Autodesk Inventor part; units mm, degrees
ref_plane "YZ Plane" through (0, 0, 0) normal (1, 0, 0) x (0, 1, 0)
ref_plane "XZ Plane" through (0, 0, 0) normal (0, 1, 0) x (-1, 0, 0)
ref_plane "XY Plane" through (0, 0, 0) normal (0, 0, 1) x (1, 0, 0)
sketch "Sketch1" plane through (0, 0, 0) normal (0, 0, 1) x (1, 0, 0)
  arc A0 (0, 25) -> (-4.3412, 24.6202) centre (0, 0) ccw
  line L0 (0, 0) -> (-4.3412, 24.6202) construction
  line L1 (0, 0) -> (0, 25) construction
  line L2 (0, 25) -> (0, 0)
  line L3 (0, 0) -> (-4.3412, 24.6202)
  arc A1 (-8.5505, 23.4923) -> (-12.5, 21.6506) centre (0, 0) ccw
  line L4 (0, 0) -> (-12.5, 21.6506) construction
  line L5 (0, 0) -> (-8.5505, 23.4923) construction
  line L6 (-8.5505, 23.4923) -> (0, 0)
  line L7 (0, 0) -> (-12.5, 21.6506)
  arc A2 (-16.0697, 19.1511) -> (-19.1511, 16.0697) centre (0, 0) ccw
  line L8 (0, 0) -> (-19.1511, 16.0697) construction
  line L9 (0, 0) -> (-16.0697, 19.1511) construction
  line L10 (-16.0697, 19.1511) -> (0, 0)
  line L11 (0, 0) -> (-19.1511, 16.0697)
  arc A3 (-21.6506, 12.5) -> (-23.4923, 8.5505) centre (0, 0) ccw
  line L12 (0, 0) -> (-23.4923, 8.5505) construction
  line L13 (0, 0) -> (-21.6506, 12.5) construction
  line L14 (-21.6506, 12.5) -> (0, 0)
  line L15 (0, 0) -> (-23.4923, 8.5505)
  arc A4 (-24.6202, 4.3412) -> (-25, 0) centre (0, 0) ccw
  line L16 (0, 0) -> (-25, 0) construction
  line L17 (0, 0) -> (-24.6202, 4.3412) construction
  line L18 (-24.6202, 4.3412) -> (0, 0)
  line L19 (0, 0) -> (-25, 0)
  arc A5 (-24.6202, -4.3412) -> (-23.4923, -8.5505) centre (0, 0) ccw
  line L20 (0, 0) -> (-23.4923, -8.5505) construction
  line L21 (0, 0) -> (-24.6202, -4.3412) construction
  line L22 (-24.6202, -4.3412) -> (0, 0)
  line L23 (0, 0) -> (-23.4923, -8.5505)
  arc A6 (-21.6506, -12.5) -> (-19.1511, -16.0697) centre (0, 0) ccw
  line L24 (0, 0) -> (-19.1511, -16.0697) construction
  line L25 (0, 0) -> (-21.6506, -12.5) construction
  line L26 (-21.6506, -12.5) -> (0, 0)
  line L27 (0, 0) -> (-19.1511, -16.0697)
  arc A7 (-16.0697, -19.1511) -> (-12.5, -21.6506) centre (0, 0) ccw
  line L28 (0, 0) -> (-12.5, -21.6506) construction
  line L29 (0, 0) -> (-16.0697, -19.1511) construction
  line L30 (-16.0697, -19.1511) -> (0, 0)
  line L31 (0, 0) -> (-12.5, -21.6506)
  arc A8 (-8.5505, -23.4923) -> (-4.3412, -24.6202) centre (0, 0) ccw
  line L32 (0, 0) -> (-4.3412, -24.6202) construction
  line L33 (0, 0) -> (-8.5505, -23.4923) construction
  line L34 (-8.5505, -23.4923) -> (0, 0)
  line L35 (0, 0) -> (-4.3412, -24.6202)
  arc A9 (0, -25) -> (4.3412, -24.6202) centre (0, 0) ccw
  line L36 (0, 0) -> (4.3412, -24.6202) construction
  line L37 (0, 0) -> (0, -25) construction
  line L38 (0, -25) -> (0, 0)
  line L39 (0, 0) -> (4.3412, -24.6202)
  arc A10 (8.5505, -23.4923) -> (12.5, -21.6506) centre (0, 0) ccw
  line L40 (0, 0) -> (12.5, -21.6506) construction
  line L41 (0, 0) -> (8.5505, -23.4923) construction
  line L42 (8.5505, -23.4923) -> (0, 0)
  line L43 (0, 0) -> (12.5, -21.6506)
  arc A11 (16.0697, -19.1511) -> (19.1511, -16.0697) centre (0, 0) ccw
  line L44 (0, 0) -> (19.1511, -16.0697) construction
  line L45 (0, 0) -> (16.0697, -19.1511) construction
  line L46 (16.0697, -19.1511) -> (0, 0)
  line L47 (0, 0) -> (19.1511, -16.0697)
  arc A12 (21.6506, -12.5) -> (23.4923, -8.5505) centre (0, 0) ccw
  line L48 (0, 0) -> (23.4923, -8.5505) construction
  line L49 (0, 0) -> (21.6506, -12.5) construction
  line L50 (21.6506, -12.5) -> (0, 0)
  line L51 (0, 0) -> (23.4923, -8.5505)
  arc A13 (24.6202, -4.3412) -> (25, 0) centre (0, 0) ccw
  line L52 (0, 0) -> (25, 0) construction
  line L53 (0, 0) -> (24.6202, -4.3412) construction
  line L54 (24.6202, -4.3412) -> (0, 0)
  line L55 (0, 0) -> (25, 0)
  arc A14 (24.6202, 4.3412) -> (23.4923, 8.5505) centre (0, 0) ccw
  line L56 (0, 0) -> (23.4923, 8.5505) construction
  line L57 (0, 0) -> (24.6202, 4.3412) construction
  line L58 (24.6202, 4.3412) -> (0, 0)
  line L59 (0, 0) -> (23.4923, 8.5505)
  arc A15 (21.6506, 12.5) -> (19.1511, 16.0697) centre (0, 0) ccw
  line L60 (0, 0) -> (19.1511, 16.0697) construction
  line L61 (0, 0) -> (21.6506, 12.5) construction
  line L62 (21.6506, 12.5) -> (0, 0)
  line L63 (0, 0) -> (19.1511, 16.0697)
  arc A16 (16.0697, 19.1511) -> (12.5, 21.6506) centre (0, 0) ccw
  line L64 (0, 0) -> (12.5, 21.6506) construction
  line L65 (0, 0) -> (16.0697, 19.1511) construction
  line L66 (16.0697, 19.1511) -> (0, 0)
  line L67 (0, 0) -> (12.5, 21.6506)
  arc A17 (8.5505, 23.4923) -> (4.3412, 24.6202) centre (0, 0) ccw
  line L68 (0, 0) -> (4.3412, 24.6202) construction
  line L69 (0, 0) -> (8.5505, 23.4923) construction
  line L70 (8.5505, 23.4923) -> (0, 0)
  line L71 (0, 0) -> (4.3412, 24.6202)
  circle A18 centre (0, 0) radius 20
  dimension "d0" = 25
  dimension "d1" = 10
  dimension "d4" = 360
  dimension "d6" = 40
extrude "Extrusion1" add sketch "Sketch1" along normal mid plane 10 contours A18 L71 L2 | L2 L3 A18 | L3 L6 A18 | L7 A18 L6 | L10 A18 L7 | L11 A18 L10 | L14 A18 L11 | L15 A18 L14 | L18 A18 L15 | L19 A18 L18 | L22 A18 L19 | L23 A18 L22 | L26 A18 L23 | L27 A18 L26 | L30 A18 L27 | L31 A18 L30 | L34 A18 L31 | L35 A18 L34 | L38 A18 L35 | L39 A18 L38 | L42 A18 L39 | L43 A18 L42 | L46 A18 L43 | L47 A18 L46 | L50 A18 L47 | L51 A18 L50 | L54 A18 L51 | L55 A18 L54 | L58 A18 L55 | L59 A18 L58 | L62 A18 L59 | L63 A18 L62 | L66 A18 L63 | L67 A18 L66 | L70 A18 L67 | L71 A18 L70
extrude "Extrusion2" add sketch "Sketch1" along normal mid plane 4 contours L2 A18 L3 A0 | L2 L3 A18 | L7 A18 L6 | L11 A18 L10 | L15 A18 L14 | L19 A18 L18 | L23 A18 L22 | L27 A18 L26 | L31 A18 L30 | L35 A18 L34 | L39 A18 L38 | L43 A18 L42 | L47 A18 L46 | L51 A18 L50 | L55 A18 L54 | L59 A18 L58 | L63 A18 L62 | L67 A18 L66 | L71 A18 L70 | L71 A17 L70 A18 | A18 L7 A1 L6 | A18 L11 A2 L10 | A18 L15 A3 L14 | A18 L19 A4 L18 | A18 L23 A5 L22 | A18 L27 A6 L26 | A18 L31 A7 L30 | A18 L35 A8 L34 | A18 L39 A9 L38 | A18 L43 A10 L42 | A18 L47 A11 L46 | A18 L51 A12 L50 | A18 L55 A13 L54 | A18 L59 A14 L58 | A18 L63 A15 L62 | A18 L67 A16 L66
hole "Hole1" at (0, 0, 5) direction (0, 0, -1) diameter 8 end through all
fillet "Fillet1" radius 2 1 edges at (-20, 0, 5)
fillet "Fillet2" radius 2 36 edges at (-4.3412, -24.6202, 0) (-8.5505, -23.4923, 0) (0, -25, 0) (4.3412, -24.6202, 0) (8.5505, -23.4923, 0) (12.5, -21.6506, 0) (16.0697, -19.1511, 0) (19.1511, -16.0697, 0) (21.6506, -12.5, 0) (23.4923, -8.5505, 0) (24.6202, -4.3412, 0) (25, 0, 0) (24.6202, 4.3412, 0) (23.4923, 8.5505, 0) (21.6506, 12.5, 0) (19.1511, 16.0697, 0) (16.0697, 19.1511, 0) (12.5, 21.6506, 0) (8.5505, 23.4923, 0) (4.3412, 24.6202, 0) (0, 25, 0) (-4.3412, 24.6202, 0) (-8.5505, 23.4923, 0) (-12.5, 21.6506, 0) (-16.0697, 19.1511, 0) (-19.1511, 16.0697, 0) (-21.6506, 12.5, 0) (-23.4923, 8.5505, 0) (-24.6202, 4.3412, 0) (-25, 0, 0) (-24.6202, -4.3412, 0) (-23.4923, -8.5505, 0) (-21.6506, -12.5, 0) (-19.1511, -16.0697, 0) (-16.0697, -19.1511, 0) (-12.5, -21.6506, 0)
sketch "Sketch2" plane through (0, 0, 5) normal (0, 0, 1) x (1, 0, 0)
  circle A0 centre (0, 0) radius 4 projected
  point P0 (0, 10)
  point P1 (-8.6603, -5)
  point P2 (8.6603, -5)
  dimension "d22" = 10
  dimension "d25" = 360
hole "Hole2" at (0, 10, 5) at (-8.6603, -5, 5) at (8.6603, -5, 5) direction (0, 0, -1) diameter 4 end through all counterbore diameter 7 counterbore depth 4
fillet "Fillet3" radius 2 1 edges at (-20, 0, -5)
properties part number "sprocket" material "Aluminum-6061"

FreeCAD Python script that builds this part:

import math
import FreeCAD as App
import Part
import Sketcher
Q = App.Units.Quantity


def edges_at(feature, points):
    """Names of the edges that pass closest to the given points."""
    edges = feature.Shape.Edges
    near = lambda p: min(range(len(edges)), key=lambda i: edges[i].distToShape(Part.Vertex(*p))[0])
    return sorted({f"Edge{near(p) + 1}" for p in points})

doc = App.newDocument("Part")
body = doc.addObject("PartDesign::Body", "Body")

# Sketch on XY plane
sketch1 = body.newObject("Sketcher::SketchObject", "Sketch")
sketch1.AttachmentSupport = (doc.getObject("XY_Plane"), [""])
sketch1.MapMode = "FlatFace"
sketch1.addGeometry(Part.Circle(App.Vector(0, 0, 0), App.Vector(0, 0, 1), 20), False)
sketch1.addConstraint(Sketcher.Constraint("Coincident", 0, 3, -1, 1))
sketch1.addConstraint(Sketcher.Constraint("Diameter", 0, Q("40 mm")))
pad1 = body.newObject("PartDesign::Pad", "Pad")
pad1.Profile = sketch1
pad1.Length = 10
pad1.Midplane = True

# Sketch on XY plane
sketch2 = body.newObject("Sketcher::SketchObject", "Sketch001")
sketch2.AttachmentSupport = (doc.getObject("XY_Plane"), [""])
sketch2.MapMode = "FlatFace"
sketch2.addGeometry(Part.ArcOfCircle(Part.Circle(App.Vector(0, 0, 0), App.Vector(0, 0, 1), 25.000005), math.radians(90), math.radians(99.999988)), False)
sketch2.addGeometry(Part.LineSegment(App.Vector(-4.3412, 24.6202, 0), App.Vector(0, 0, 0)), False)
sketch2.addGeometry(Part.LineSegment(App.Vector(0, 0, 0), App.Vector(0, 25, 0)), False)
sketch2.addGeometry(Part.LineSegment(App.Vector(0, 0, 0), App.Vector(-8.5505, 23.4923, 0)), False)
sketch2.addGeometry(Part.ArcOfCircle(Part.Circle(App.Vector(-0.000734, 0.001772, 0), App.Vector(0, 0, 1), 24.998068), math.radians(109.999813), math.radians(120.000614)), False)
sketch2.addGeometry(Part.LineSegment(App.Vector(-12.5, 21.6506, 0), App.Vector(0, 0, 0)), False)
sketch2.addGeometry(Part.LineSegment(App.Vector(0, 0, 0), App.Vector(-16.0697, 19.1511, 0)), False)
sketch2.addGeometry(Part.ArcOfCircle(Part.Circle(App.Vector(0, 0, 0), App.Vector(0, 0, 1), 24.999998), math.radians(130.000033), math.radians(139.999967)), False)
sketch2.addGeometry(Part.LineSegment(App.Vector(-19.1511, 16.0697, 0), App.Vector(0, 0, 0)), False)
sketch2.addGeometry(Part.LineSegment(App.Vector(0, 0, 0), App.Vector(-21.6506, 12.5, 0)), False)
sketch2.addGeometry(Part.ArcOfCircle(Part.Circle(App.Vector(0.001701, -0.000886, 0), App.Vector(0, 0, 1), 25.001886), math.radians(150.000152), math.radians(159.999422)), False)
sketch2.addGeometry(Part.LineSegment(App.Vector(-23.4923, 8.5505, 0), App.Vector(0, 0, 0)), False)
sketch2.addGeometry(Part.LineSegment(App.Vector(0, 0, 0), App.Vector(-24.6202, 4.3412, 0)), False)
sketch2.addGeometry(Part.ArcOfCircle(Part.Circle(App.Vector(0, 0, 0), App.Vector(0, 0, 1), 24.99997), math.radians(170.000012), math.radians(180)), False)
sketch2.addGeometry(Part.LineSegment(App.Vector(-25, 0, 0), App.Vector(0, 0, 0)), False)
sketch2.addGeometry(Part.LineSegment(App.Vector(0, 0, 0), App.Vector(-24.6202, -4.3412, 0)), False)
sketch2.addGeometry(Part.ArcOfCircle(Part.Circle(App.Vector(-0.002711, -0.000601, 0), App.Vector(0, 0, 1), 24.997231), math.radians(-170.00029), math.radians(-159.999165)), False)
sketch2.addGeometry(Part.LineSegment(App.Vector(-23.4923, -8.5505, 0), App.Vector(0, 0, 0)), False)
sketch2.addGeometry(Part.LineSegment(App.Vector(0, 0, 0), App.Vector(-21.6506, -12.5, 0)), False)
sketch2.addGeometry(Part.ArcOfCircle(Part.Circle(App.Vector(0.003126, 0.001992, 0), App.Vector(0, 0, 1), 25.003673), math.radians(-149.999589), math.radians(-140.001075)), False)
sketch2.addGeometry(Part.LineSegment(App.Vector(-19.1511, -16.0697, 0), App.Vector(0, 0, 0)), False)
sketch2.addGeometry(Part.LineSegment(App.Vector(0, 0, 0), App.Vector(-16.0697, -19.1511, 0)), False)
sketch2.addGeometry(Part.ArcOfCircle(Part.Circle(App.Vector(-0.002256, -0.00294, 0), App.Vector(0, 0, 1), 24.996296), math.radians(-130.000404), math.radians(-119.998932)), False)
sketch2.addGeometry(Part.LineSegment(App.Vector(-12.5, -21.6506, 0), App.Vector(0, 0, 0)), False)
sketch2.addGeometry(Part.LineSegment(App.Vector(0, 0, 0), App.Vector(-8.5505, -23.4923, 0)), False)
sketch2.addGeometry(Part.ArcOfCircle(Part.Circle(App.Vector(0.000835, 0.002649, 0), App.Vector(0, 0, 1), 25.002759), math.radians(-109.999727), math.radians(-100.000818)), False)
sketch2.addGeometry(Part.LineSegment(App.Vector(-4.3412, -24.6202, 0), App.Vector(0, 0, 0)), False)
sketch2.addGeometry(Part.LineSegment(App.Vector(0, 0, 0), App.Vector(0, -25, 0)), False)
sketch2.addGeometry(Part.ArcOfCircle(Part.Circle(App.Vector(0, 0, 0), App.Vector(0, 0, 1), 25.000005), math.radians(-90), math.radians(-80.000012)), False)
sketch2.addGeometry(Part.LineSegment(App.Vector(4.3412, -24.6202, 0), App.Vector(0, 0, 0)), False)
sketch2.addGeometry(Part.LineSegment(App.Vector(0, 0, 0), App.Vector(8.5505, -23.4923, 0)), False)
sketch2.addGeometry(Part.ArcOfCircle(Part.Circle(App.Vector(0.000734, -0.001772, 0), App.Vector(0, 0, 1), 24.998068), math.radians(-70.000187), math.radians(-59.999386)), False)
sketch2.addGeometry(Part.LineSegment(App.Vector(12.5, -21.6506, 0), App.Vector(0, 0, 0)), False)
sketch2.addGeometry(Part.LineSegment(App.Vector(0, 0, 0), App.Vector(16.0697, -19.1511, 0)), False)
sketch2.addGeometry(Part.ArcOfCircle(Part.Circle(App.Vector(0, 0, 0), App.Vector(0, 0, 1), 24.999998), math.radians(-49.999967), math.radians(-40.000033)), False)
sketch2.addGeometry(Part.LineSegment(App.Vector(19.1511, -16.0697, 0), App.Vector(0, 0, 0)), False)
sketch2.addGeometry(Part.LineSegment(App.Vector(0, 0, 0), App.Vector(21.6506, -12.5, 0)), False)
sketch2.addGeometry(Part.ArcOfCircle(Part.Circle(App.Vector(-0.001701, 0.000886, 0), App.Vector(0, 0, 1), 25.001886), math.radians(-29.999848), math.radians(-20.000578)), False)
sketch2.addGeometry(Part.LineSegment(App.Vector(23.4923, -8.5505, 0), App.Vector(0, 0, 0)), False)
sketch2.addGeometry(Part.LineSegment(App.Vector(0, 0, 0), App.Vector(24.6202, -4.3412, 0)), False)
sketch2.addGeometry(Part.ArcOfCircle(Part.Circle(App.Vector(0, 0, 0), App.Vector(0, 0, 1), 24.99997), math.radians(-9.999988), math.radians(0)), False)
sketch2.addGeometry(Part.LineSegment(App.Vector(25, 0, 0), App.Vector(0, 0, 0)), False)
sketch2.addGeometry(Part.LineSegment(App.Vector(0, 0, 0), App.Vector(24.6202, 4.3412, 0)), False)
sketch2.addGeometry(Part.ArcOfCircle(Part.Circle(App.Vector(0.002711, 0.000601, 0), App.Vector(0, 0, 1), 24.997231), math.radians(9.99971), math.radians(20.000835)), False)
sketch2.addGeometry(Part.LineSegment(App.Vector(23.4923, 8.5505, 0), App.Vector(0, 0, 0)), False)
sketch2.addGeometry(Part.LineSegment(App.Vector(0, 0, 0), App.Vector(21.6506, 12.5, 0)), False)
sketch2.addGeometry(Part.ArcOfCircle(Part.Circle(App.Vector(-0.003126, -0.001992, 0), App.Vector(0, 0, 1), 25.003673), math.radians(30.000411), math.radians(39.998925)), False)
sketch2.addGeometry(Part.LineSegment(App.Vector(19.1511, 16.0697, 0), App.Vector(0, 0, 0)), False)
sketch2.addGeometry(Part.LineSegment(App.Vector(0, 0, 0), App.Vector(16.0697, 19.1511, 0)), False)
sketch2.addGeometry(Part.ArcOfCircle(Part.Circle(App.Vector(0.002256, 0.00294, 0), App.Vector(0, 0, 1), 24.996296), math.radians(49.999596), math.radians(60.001068)), False)
sketch2.addGeometry(Part.LineSegment(App.Vector(12.5, 21.6506, 0), App.Vector(0, 0, 0)), False)
sketch2.addGeometry(Part.LineSegment(App.Vector(0, 0, 0), App.Vector(8.5505, 23.4923, 0)), False)
sketch2.addGeometry(Part.ArcOfCircle(Part.Circle(App.Vector(-0.000835, -0.002649, 0), App.Vector(0, 0, 1), 25.002759), math.radians(70.000273), math.radians(79.999182)), False)
sketch2.addGeometry(Part.LineSegment(App.Vector(4.3412, 24.6202, 0), App.Vector(0, 0, 0)), False)
sketch2.addConstraint(Sketcher.Constraint("Coincident", 0, 2, 1, 1))
sketch2.addConstraint(Sketcher.Constraint("Coincident", 1, 2, 2, 1))
sketch2.addConstraint(Sketcher.Constraint("Coincident", 2, 2, 0, 1))
sketch2.addConstraint(Sketcher.Constraint("Coincident", 3, 2, 4, 1))
sketch2.addConstraint(Sketcher.Constraint("Coincident", 4, 2, 5, 1))
sketch2.addConstraint(Sketcher.Constraint("Coincident", 5, 2, 3, 1))
sketch2.addConstraint(Sketcher.Constraint("Coincident", 6, 2, 7, 1))
sketch2.addConstraint(Sketcher.Constraint("Coincident", 7, 2, 8, 1))
sketch2.addConstraint(Sketcher.Constraint("Coincident", 8, 2, 6, 1))
sketch2.addConstraint(Sketcher.Constraint("Coincident", 9, 2, 10, 1))
sketch2.addConstraint(Sketcher.Constraint("Coincident", 10, 2, 11, 1))
sketch2.addConstraint(Sketcher.Constraint("Coincident", 11, 2, 9, 1))
sketch2.addConstraint(Sketcher.Constraint("Coincident", 12, 2, 13, 1))
sketch2.addConstraint(Sketcher.Constraint("Coincident", 13, 2, 14, 1))
sketch2.addConstraint(Sketcher.Constraint("Coincident", 14, 2, 12, 1))
sketch2.addConstraint(Sketcher.Constraint("Coincident", 15, 2, 16, 1))
sketch2.addConstraint(Sketcher.Constraint("Coincident", 16, 2, 17, 1))
sketch2.addConstraint(Sketcher.Constraint("Coincident", 17, 2, 15, 1))
sketch2.addConstraint(Sketcher.Constraint("Coincident", 18, 2, 19, 1))
sketch2.addConstraint(Sketcher.Constraint("Coincident", 19, 2, 20, 1))
sketch2.addConstraint(Sketcher.Constraint("Coincident", 20, 2, 18, 1))
sketch2.addConstraint(Sketcher.Constraint("Coincident", 21, 2, 22, 1))
sketch2.addConstraint(Sketcher.Constraint("Coincident", 22, 2, 23, 1))
sketch2.addConstraint(Sketcher.Constraint("Coincident", 23, 2, 21, 1))
sketch2.addConstraint(Sketcher.Constraint("Coincident", 24, 2, 25, 1))
sketch2.addConstraint(Sketcher.Constraint("Coincident", 25, 2, 26, 1))
sketch2.addConstraint(Sketcher.Constraint("Coincident", 26, 2, 24, 1))
sketch2.addConstraint(Sketcher.Constraint("Coincident", 27, 2, 28, 1))
sketch2.addConstraint(Sketcher.Constraint("Coincident", 28, 2, 29, 1))
sketch2.addConstraint(Sketcher.Constraint("Coincident", 29, 2, 27, 1))
sketch2.addConstraint(Sketcher.Constraint("Coincident", 30, 2, 31, 1))
sketch2.addConstraint(Sketcher.Constraint("Coincident", 31, 2, 32, 1))
sketch2.addConstraint(Sketcher.Constraint("Coincident", 32, 2, 30, 1))
sketch2.addConstraint(Sketcher.Constraint("Coincident", 33, 2, 34, 1))
sketch2.addConstraint(Sketcher.Constraint("Coincident", 34, 2, 35, 1))
sketch2.addConstraint(Sketcher.Constraint("Coincident", 35, 2, 33, 1))
sketch2.addConstraint(Sketcher.Constraint("Coincident", 36, 2, 37, 1))
sketch2.addConstraint(Sketcher.Constraint("Coincident", 37, 2, 38, 1))
sketch2.addConstraint(Sketcher.Constraint("Coincident", 38, 2, 36, 1))
sketch2.addConstraint(Sketcher.Constraint("Coincident", 39, 2, 40, 1))
sketch2.addConstraint(Sketcher.Constraint("Coincident", 40, 2, 41, 1))
sketch2.addConstraint(Sketcher.Constraint("Coincident", 41, 2, 39, 1))
sketch2.addConstraint(Sketcher.Constraint("Coincident", 42, 2, 43, 1))
sketch2.addConstraint(Sketcher.Constraint("Coincident", 43, 2, 44, 1))
sketch2.addConstraint(Sketcher.Constraint("Coincident", 44, 2, 42, 1))
sketch2.addConstraint(Sketcher.Constraint("Coincident", 45, 2, 46, 1))
sketch2.addConstraint(Sketcher.Constraint("Coincident", 46, 2, 47, 1))
sketch2.addConstraint(Sketcher.Constraint("Coincident", 47, 2, 45, 1))
sketch2.addConstraint(Sketcher.Constraint("Coincident", 48, 2, 49, 1))
sketch2.addConstraint(Sketcher.Constraint("Coincident", 49, 2, 50, 1))
sketch2.addConstraint(Sketcher.Constraint("Coincident", 50, 2, 48, 1))
sketch2.addConstraint(Sketcher.Constraint("Coincident", 51, 2, 52, 1))
sketch2.addConstraint(Sketcher.Constraint("Coincident", 52, 2, 53, 1))
sketch2.addConstraint(Sketcher.Constraint("Coincident", 53, 2, 51, 1))
sketch2.addConstraint(Sketcher.Constraint("Vertical", 2))
sketch2.addConstraint(Sketcher.Constraint("Horizontal", 14))
sketch2.addConstraint(Sketcher.Constraint("Vertical", 27))
sketch2.addConstraint(Sketcher.Constraint("Horizontal", 41))
sketch2.addConstraint(Sketcher.Constraint("Coincident", 0, 3, -1, 1))
sketch2.addConstraint(Sketcher.Constraint("Coincident", 7, 3, -1, 1))
sketch2.addConstraint(Sketcher.Constraint("Coincident", 13, 3, -1, 1))
sketch2.addConstraint(Sketcher.Constraint("Coincident", 28, 3, -1, 1))
sketch2.addConstraint(Sketcher.Constraint("Coincident", 34, 3, -1, 1))
sketch2.addConstraint(Sketcher.Constraint("Coincident", 40, 3, -1, 1))
sketch2.addConstraint(Sketcher.Constraint("Coincident", 1, 2, -1, 1))
sketch2.addConstraint(Sketcher.Constraint("Coincident", 5, 2, -1, 1))
sketch2.addConstraint(Sketcher.Constraint("Coincident", 8, 2, -1, 1))
sketch2.addConstraint(Sketcher.Constraint("Coincident", 11, 2, -1, 1))
sketch2.addConstraint(Sketcher.Constraint("Coincident", 14, 2, -1, 1))
sketch2.addConstraint(Sketcher.Constraint("Coincident", 17, 2, -1, 1))
sketch2.addConstraint(Sketcher.Constraint("Coincident", 20, 2, -1, 1))
sketch2.addConstraint(Sketcher.Constraint("Coincident", 23, 2, -1, 1))
sketch2.addConstraint(Sketcher.Constraint("Coincident", 26, 2, -1, 1))
sketch2.addConstraint(Sketcher.Constraint("Coincident", 29, 2, -1, 1))
sketch2.addConstraint(Sketcher.Constraint("Coincident", 32, 2, -1, 1))
sketch2.addConstraint(Sketcher.Constraint("Coincident", 35, 2, -1, 1))
sketch2.addConstraint(Sketcher.Constraint("Coincident", 38, 2, -1, 1))
sketch2.addConstraint(Sketcher.Constraint("Coincident", 41, 2, -1, 1))
sketch2.addConstraint(Sketcher.Constraint("Coincident", 44, 2, -1, 1))
sketch2.addConstraint(Sketcher.Constraint("Coincident", 47, 2, -1, 1))
sketch2.addConstraint(Sketcher.Constraint("Coincident", 50, 2, -1, 1))
sketch2.addConstraint(Sketcher.Constraint("Coincident", 53, 2, -1, 1))
sketch2.addConstraint(Sketcher.Constraint("Equal", 0, 7))
sketch2.addConstraint(Sketcher.Constraint("Equal", 7, 13))
sketch2.addConstraint(Sketcher.Constraint("Equal", 13, 28))
sketch2.addConstraint(Sketcher.Constraint("Equal", 4, 31))
sketch2.addConstraint(Sketcher.Constraint("Equal", 28, 34))
sketch2.addConstraint(Sketcher.Constraint("Equal", 10, 37))
sketch2.addConstraint(Sketcher.Constraint("Equal", 34, 40))
sketch2.addConstraint(Sketcher.Constraint("Equal", 16, 43))
sketch2.addConstraint(Sketcher.Constraint("Equal", 19, 46))
sketch2.addConstraint(Sketcher.Constraint("Equal", 22, 49))
sketch2.addConstraint(Sketcher.Constraint("Equal", 25, 52))
sketch2.addConstraint(Sketcher.Constraint("Symmetric", 4, 3, 31, 3, -1, 1))
sketch2.addConstraint(Sketcher.Constraint("Symmetric", 10, 3, 37, 3, -1, 1))
sketch2.addConstraint(Sketcher.Constraint("Symmetric", 16, 3, 43, 3, -1, 1))
sketch2.addConstraint(Sketcher.Constraint("Symmetric", 19, 3, 46, 3, -1, 1))
sketch2.addConstraint(Sketcher.Constraint("Symmetric", 22, 3, 49, 3, -1, 1))
sketch2.addConstraint(Sketcher.Constraint("Symmetric", 25, 3, 52, 3, -1, 1))
sketch2.addConstraint(Sketcher.Constraint("Symmetric", 25, 2, 28, 2, -2))
sketch2.addConstraint(Sketcher.Constraint("Symmetric", 24, 2, 30, 2, -2))
sketch2.addConstraint(Sketcher.Constraint("Symmetric", 22, 2, 31, 2, -2))
sketch2.addConstraint(Sketcher.Constraint("Symmetric", 21, 2, 33, 2, -2))
sketch2.addConstraint(Sketcher.Constraint("Symmetric", 19, 2, 34, 2, -2))
sketch2.addConstraint(Sketcher.Constraint("Symmetric", 18, 2, 36, 2, -2))
sketch2.addConstraint(Sketcher.Constraint("Symmetric", 16, 2, 37, 2, -2))
sketch2.addConstraint(Sketcher.Constraint("Symmetric", 15, 2, 39, 2, -2))
sketch2.addConstraint(Sketcher.Constraint("Perpendicular", 1, 15))
sketch2.addConstraint(Sketcher.Constraint("Perpendicular", 3, 17))
sketch2.addConstraint(Sketcher.Constraint("Perpendicular", 5, 18))
sketch2.addConstraint(Sketcher.Constraint("Perpendicular", 6, 20))
sketch2.addConstraint(Sketcher.Constraint("Perpendicular", 8, 21))
sketch2.addConstraint(Sketcher.Constraint("Perpendicular", 9, 23))
sketch2.addConstraint(Sketcher.Constraint("Perpendicular", 11, 24))
sketch2.addConstraint(Sketcher.Constraint("Perpendicular", 12, 26))
sketch2.addConstraint(Sketcher.Constraint("Perpendicular", 15, 29))
sketch2.addConstraint(Sketcher.Constraint("Perpendicular", 17, 30))
sketch2.addConstraint(Sketcher.Constraint("Perpendicular", 18, 32))
sketch2.addConstraint(Sketcher.Constraint("Perpendicular", 20, 33))
sketch2.addConstraint(Sketcher.Constraint("Perpendicular", 29, 42))
sketch2.addConstraint(Sketcher.Constraint("Perpendicular", 30, 44))
sketch2.addConstraint(Sketcher.Constraint("Perpendicular", 32, 45))
sketch2.addConstraint(Sketcher.Constraint("Perpendicular", 33, 47))
sketch2.addConstraint(Sketcher.Constraint("Perpendicular", 35, 48))
sketch2.addConstraint(Sketcher.Constraint("Perpendicular", 36, 50))
sketch2.addConstraint(Sketcher.Constraint("Perpendicular", 38, 51))
sketch2.addConstraint(Sketcher.Constraint("Perpendicular", 39, 53))
sketch2.addConstraint(Sketcher.Constraint("Vertical", 25, 3, 31, 3))
sketch2.addConstraint(Sketcher.Constraint("Equal", 1, 3))
sketch2.addConstraint(Sketcher.Constraint("Equal", 3, 5))
sketch2.addConstraint(Sketcher.Constraint("Equal", 8, 9))
sketch2.addConstraint(Sketcher.Constraint("Equal", 9, 11))
sketch2.addConstraint(Sketcher.Constraint("Radius", 0, Q("25 mm")))
sketch2.addConstraint(Sketcher.Constraint("Angle", 8, Q("-40 deg")))
sketch2.addConstraint(Sketcher.Constraint("Angle", 39, Q("-10 deg")))
sketch2.addConstraint(Sketcher.Constraint("Angle", 3, Q("110 deg")))
sketch2.addConstraint(Sketcher.Constraint("Angle", 5, Q("-60 deg")))
sketch2.addConstraint(Sketcher.Constraint("Radius", 4, Q("24.998 mm")))
sketch2.addConstraint(Sketcher.Constraint("Radius", 10, Q("25.002 mm")))
sketch2.addConstraint(Sketcher.Constraint("Radius", 16, Q("24.9972 mm")))
sketch2.addConstraint(Sketcher.Constraint("Radius", 19, Q("25.0037 mm")))
sketch2.addConstraint(Sketcher.Constraint("Radius", 22, Q("24.9963 mm")))
pad2 = body.newObject("PartDesign::Pad", "Pad001")
pad2.Profile = sketch2
pad2.Length = 4
pad2.Midplane = True

# Sketch on XY plane
sketch3 = body.newObject("Sketcher::SketchObject", "Sketch002")
sketch3.AttachmentSupport = (doc.getObject("XY_Plane"), [""])
sketch3.MapMode = "FlatFace"
sketch3.AttachmentOffset = App.Placement(App.Vector(0, 0, 5), App.Rotation())
sketch3.addGeometry(Part.Circle(App.Vector(0, 0, 0), App.Vector(0, 0, 1), 4), False)
sketch3.addConstraint(Sketcher.Constraint("Coincident", 0, 3, -1, 1))
sketch3.addConstraint(Sketcher.Constraint("Diameter", 0, Q("8 mm")))
doc.recompute()
hole = body.newObject("PartDesign::Hole", "Hole")
hole.Profile = sketch3
hole.ThreadType = "None"
hole.Diameter = 8
hole.DepthType = "ThroughAll"
doc.recompute()

fillet = body.newObject("PartDesign::Fillet", "Fillet")
fillet.Base = (hole, edges_at(hole, [(-20, 0, 5)]))
fillet.Radius = 2
doc.recompute()

fillet2 = body.newObject("PartDesign::Fillet", "Fillet001")
fillet2.Base = (fillet, edges_at(fillet, [
    (-4.341, -24.62, 0),
    (-8.55, -23.492, 0),
    (0, -25, 0),
    (4.341, -24.62, 0),
    (8.55, -23.492, 0),
    (12.5, -21.651, 0),
    (16.07, -19.151, 0),
    (19.151, -16.07, 0),
    (21.651, -12.5, 0),
    (23.492, -8.55, 0),
    (24.62, -4.341, 0),
    (25, 0, 0),
    (24.62, 4.341, 0),
    (23.492, 8.55, 0),
    (21.651, 12.5, 0),
    (19.151, 16.07, 0),
    (16.07, 19.151, 0),
    (12.5, 21.651, 0),
    (8.55, 23.492, 0),
    (4.341, 24.62, 0),
    (0, 25, 0),
    (-4.341, 24.62, 0),
    (-8.55, 23.492, 0),
    (-12.5, 21.651, 0),
    (-16.07, 19.151, 0),
    (-19.151, 16.07, 0),
    (-21.651, 12.5, 0),
    (-23.492, 8.55, 0),
    (-24.62, 4.341, 0),
    (-25, 0, 0),
    (-24.62, -4.341, 0),
    (-23.492, -8.55, 0),
    (-21.651, -12.5, 0),
    (-19.151, -16.07, 0),
    (-16.07, -19.151, 0),
    (-12.5, -21.651, 0),
]))
fillet2.Radius = 2

# Sketch on XY plane
sketch4 = body.newObject("Sketcher::SketchObject", "Sketch003")
sketch4.AttachmentSupport = (doc.getObject("XY_Plane"), [""])
sketch4.MapMode = "FlatFace"
sketch4.AttachmentOffset = App.Placement(App.Vector(0, 0, 5), App.Rotation())
sketch4.addGeometry(Part.Circle(App.Vector(0, 10, 0), App.Vector(0, 0, 1), 2), False)
sketch4.addGeometry(Part.Circle(App.Vector(-8.7, -5, 0), App.Vector(0, 0, 1), 2), False)
sketch4.addGeometry(Part.Circle(App.Vector(8.7, -5, 0), App.Vector(0, 0, 1), 2), False)
sketch4.addConstraint(Sketcher.Constraint("Equal", 0, 1))
sketch4.addConstraint(Sketcher.Constraint("Equal", 1, 2))
sketch4.addConstraint(Sketcher.Constraint("Symmetric", 1, 3, 2, 3, -2))
sketch4.addConstraint(Sketcher.Constraint("PointOnObject", 0, 3, -2))
sketch4.addConstraint(Sketcher.Constraint("Diameter", 0, Q("4 mm")))
sketch4.addConstraint(Sketcher.Constraint("DistanceY", -1, 1, 0, 3, Q("10 mm")))
sketch4.addConstraint(Sketcher.Constraint("DistanceY", 1, 3, -1, 1, Q("5 mm")))
sketch4.addConstraint(Sketcher.Constraint("DistanceX", 1, 3, -1, 1, Q("8.6603 mm")))
doc.recompute()
hole2 = body.newObject("PartDesign::Hole", "Hole001")
hole2.Profile = sketch4
hole2.ThreadType = "None"
hole2.Diameter = 4
hole2.DepthType = "ThroughAll"
hole2.HoleCutType = "Counterbore"
hole2.HoleCutDiameter = 7
hole2.HoleCutDepth = 4
doc.recompute()

fillet3 = body.newObject("PartDesign::Fillet", "Fillet002")
fillet3.Base = (hole2, edges_at(hole2, [(-20, 0, -5)]))
fillet3.Radius = 2

doc.recompute()
